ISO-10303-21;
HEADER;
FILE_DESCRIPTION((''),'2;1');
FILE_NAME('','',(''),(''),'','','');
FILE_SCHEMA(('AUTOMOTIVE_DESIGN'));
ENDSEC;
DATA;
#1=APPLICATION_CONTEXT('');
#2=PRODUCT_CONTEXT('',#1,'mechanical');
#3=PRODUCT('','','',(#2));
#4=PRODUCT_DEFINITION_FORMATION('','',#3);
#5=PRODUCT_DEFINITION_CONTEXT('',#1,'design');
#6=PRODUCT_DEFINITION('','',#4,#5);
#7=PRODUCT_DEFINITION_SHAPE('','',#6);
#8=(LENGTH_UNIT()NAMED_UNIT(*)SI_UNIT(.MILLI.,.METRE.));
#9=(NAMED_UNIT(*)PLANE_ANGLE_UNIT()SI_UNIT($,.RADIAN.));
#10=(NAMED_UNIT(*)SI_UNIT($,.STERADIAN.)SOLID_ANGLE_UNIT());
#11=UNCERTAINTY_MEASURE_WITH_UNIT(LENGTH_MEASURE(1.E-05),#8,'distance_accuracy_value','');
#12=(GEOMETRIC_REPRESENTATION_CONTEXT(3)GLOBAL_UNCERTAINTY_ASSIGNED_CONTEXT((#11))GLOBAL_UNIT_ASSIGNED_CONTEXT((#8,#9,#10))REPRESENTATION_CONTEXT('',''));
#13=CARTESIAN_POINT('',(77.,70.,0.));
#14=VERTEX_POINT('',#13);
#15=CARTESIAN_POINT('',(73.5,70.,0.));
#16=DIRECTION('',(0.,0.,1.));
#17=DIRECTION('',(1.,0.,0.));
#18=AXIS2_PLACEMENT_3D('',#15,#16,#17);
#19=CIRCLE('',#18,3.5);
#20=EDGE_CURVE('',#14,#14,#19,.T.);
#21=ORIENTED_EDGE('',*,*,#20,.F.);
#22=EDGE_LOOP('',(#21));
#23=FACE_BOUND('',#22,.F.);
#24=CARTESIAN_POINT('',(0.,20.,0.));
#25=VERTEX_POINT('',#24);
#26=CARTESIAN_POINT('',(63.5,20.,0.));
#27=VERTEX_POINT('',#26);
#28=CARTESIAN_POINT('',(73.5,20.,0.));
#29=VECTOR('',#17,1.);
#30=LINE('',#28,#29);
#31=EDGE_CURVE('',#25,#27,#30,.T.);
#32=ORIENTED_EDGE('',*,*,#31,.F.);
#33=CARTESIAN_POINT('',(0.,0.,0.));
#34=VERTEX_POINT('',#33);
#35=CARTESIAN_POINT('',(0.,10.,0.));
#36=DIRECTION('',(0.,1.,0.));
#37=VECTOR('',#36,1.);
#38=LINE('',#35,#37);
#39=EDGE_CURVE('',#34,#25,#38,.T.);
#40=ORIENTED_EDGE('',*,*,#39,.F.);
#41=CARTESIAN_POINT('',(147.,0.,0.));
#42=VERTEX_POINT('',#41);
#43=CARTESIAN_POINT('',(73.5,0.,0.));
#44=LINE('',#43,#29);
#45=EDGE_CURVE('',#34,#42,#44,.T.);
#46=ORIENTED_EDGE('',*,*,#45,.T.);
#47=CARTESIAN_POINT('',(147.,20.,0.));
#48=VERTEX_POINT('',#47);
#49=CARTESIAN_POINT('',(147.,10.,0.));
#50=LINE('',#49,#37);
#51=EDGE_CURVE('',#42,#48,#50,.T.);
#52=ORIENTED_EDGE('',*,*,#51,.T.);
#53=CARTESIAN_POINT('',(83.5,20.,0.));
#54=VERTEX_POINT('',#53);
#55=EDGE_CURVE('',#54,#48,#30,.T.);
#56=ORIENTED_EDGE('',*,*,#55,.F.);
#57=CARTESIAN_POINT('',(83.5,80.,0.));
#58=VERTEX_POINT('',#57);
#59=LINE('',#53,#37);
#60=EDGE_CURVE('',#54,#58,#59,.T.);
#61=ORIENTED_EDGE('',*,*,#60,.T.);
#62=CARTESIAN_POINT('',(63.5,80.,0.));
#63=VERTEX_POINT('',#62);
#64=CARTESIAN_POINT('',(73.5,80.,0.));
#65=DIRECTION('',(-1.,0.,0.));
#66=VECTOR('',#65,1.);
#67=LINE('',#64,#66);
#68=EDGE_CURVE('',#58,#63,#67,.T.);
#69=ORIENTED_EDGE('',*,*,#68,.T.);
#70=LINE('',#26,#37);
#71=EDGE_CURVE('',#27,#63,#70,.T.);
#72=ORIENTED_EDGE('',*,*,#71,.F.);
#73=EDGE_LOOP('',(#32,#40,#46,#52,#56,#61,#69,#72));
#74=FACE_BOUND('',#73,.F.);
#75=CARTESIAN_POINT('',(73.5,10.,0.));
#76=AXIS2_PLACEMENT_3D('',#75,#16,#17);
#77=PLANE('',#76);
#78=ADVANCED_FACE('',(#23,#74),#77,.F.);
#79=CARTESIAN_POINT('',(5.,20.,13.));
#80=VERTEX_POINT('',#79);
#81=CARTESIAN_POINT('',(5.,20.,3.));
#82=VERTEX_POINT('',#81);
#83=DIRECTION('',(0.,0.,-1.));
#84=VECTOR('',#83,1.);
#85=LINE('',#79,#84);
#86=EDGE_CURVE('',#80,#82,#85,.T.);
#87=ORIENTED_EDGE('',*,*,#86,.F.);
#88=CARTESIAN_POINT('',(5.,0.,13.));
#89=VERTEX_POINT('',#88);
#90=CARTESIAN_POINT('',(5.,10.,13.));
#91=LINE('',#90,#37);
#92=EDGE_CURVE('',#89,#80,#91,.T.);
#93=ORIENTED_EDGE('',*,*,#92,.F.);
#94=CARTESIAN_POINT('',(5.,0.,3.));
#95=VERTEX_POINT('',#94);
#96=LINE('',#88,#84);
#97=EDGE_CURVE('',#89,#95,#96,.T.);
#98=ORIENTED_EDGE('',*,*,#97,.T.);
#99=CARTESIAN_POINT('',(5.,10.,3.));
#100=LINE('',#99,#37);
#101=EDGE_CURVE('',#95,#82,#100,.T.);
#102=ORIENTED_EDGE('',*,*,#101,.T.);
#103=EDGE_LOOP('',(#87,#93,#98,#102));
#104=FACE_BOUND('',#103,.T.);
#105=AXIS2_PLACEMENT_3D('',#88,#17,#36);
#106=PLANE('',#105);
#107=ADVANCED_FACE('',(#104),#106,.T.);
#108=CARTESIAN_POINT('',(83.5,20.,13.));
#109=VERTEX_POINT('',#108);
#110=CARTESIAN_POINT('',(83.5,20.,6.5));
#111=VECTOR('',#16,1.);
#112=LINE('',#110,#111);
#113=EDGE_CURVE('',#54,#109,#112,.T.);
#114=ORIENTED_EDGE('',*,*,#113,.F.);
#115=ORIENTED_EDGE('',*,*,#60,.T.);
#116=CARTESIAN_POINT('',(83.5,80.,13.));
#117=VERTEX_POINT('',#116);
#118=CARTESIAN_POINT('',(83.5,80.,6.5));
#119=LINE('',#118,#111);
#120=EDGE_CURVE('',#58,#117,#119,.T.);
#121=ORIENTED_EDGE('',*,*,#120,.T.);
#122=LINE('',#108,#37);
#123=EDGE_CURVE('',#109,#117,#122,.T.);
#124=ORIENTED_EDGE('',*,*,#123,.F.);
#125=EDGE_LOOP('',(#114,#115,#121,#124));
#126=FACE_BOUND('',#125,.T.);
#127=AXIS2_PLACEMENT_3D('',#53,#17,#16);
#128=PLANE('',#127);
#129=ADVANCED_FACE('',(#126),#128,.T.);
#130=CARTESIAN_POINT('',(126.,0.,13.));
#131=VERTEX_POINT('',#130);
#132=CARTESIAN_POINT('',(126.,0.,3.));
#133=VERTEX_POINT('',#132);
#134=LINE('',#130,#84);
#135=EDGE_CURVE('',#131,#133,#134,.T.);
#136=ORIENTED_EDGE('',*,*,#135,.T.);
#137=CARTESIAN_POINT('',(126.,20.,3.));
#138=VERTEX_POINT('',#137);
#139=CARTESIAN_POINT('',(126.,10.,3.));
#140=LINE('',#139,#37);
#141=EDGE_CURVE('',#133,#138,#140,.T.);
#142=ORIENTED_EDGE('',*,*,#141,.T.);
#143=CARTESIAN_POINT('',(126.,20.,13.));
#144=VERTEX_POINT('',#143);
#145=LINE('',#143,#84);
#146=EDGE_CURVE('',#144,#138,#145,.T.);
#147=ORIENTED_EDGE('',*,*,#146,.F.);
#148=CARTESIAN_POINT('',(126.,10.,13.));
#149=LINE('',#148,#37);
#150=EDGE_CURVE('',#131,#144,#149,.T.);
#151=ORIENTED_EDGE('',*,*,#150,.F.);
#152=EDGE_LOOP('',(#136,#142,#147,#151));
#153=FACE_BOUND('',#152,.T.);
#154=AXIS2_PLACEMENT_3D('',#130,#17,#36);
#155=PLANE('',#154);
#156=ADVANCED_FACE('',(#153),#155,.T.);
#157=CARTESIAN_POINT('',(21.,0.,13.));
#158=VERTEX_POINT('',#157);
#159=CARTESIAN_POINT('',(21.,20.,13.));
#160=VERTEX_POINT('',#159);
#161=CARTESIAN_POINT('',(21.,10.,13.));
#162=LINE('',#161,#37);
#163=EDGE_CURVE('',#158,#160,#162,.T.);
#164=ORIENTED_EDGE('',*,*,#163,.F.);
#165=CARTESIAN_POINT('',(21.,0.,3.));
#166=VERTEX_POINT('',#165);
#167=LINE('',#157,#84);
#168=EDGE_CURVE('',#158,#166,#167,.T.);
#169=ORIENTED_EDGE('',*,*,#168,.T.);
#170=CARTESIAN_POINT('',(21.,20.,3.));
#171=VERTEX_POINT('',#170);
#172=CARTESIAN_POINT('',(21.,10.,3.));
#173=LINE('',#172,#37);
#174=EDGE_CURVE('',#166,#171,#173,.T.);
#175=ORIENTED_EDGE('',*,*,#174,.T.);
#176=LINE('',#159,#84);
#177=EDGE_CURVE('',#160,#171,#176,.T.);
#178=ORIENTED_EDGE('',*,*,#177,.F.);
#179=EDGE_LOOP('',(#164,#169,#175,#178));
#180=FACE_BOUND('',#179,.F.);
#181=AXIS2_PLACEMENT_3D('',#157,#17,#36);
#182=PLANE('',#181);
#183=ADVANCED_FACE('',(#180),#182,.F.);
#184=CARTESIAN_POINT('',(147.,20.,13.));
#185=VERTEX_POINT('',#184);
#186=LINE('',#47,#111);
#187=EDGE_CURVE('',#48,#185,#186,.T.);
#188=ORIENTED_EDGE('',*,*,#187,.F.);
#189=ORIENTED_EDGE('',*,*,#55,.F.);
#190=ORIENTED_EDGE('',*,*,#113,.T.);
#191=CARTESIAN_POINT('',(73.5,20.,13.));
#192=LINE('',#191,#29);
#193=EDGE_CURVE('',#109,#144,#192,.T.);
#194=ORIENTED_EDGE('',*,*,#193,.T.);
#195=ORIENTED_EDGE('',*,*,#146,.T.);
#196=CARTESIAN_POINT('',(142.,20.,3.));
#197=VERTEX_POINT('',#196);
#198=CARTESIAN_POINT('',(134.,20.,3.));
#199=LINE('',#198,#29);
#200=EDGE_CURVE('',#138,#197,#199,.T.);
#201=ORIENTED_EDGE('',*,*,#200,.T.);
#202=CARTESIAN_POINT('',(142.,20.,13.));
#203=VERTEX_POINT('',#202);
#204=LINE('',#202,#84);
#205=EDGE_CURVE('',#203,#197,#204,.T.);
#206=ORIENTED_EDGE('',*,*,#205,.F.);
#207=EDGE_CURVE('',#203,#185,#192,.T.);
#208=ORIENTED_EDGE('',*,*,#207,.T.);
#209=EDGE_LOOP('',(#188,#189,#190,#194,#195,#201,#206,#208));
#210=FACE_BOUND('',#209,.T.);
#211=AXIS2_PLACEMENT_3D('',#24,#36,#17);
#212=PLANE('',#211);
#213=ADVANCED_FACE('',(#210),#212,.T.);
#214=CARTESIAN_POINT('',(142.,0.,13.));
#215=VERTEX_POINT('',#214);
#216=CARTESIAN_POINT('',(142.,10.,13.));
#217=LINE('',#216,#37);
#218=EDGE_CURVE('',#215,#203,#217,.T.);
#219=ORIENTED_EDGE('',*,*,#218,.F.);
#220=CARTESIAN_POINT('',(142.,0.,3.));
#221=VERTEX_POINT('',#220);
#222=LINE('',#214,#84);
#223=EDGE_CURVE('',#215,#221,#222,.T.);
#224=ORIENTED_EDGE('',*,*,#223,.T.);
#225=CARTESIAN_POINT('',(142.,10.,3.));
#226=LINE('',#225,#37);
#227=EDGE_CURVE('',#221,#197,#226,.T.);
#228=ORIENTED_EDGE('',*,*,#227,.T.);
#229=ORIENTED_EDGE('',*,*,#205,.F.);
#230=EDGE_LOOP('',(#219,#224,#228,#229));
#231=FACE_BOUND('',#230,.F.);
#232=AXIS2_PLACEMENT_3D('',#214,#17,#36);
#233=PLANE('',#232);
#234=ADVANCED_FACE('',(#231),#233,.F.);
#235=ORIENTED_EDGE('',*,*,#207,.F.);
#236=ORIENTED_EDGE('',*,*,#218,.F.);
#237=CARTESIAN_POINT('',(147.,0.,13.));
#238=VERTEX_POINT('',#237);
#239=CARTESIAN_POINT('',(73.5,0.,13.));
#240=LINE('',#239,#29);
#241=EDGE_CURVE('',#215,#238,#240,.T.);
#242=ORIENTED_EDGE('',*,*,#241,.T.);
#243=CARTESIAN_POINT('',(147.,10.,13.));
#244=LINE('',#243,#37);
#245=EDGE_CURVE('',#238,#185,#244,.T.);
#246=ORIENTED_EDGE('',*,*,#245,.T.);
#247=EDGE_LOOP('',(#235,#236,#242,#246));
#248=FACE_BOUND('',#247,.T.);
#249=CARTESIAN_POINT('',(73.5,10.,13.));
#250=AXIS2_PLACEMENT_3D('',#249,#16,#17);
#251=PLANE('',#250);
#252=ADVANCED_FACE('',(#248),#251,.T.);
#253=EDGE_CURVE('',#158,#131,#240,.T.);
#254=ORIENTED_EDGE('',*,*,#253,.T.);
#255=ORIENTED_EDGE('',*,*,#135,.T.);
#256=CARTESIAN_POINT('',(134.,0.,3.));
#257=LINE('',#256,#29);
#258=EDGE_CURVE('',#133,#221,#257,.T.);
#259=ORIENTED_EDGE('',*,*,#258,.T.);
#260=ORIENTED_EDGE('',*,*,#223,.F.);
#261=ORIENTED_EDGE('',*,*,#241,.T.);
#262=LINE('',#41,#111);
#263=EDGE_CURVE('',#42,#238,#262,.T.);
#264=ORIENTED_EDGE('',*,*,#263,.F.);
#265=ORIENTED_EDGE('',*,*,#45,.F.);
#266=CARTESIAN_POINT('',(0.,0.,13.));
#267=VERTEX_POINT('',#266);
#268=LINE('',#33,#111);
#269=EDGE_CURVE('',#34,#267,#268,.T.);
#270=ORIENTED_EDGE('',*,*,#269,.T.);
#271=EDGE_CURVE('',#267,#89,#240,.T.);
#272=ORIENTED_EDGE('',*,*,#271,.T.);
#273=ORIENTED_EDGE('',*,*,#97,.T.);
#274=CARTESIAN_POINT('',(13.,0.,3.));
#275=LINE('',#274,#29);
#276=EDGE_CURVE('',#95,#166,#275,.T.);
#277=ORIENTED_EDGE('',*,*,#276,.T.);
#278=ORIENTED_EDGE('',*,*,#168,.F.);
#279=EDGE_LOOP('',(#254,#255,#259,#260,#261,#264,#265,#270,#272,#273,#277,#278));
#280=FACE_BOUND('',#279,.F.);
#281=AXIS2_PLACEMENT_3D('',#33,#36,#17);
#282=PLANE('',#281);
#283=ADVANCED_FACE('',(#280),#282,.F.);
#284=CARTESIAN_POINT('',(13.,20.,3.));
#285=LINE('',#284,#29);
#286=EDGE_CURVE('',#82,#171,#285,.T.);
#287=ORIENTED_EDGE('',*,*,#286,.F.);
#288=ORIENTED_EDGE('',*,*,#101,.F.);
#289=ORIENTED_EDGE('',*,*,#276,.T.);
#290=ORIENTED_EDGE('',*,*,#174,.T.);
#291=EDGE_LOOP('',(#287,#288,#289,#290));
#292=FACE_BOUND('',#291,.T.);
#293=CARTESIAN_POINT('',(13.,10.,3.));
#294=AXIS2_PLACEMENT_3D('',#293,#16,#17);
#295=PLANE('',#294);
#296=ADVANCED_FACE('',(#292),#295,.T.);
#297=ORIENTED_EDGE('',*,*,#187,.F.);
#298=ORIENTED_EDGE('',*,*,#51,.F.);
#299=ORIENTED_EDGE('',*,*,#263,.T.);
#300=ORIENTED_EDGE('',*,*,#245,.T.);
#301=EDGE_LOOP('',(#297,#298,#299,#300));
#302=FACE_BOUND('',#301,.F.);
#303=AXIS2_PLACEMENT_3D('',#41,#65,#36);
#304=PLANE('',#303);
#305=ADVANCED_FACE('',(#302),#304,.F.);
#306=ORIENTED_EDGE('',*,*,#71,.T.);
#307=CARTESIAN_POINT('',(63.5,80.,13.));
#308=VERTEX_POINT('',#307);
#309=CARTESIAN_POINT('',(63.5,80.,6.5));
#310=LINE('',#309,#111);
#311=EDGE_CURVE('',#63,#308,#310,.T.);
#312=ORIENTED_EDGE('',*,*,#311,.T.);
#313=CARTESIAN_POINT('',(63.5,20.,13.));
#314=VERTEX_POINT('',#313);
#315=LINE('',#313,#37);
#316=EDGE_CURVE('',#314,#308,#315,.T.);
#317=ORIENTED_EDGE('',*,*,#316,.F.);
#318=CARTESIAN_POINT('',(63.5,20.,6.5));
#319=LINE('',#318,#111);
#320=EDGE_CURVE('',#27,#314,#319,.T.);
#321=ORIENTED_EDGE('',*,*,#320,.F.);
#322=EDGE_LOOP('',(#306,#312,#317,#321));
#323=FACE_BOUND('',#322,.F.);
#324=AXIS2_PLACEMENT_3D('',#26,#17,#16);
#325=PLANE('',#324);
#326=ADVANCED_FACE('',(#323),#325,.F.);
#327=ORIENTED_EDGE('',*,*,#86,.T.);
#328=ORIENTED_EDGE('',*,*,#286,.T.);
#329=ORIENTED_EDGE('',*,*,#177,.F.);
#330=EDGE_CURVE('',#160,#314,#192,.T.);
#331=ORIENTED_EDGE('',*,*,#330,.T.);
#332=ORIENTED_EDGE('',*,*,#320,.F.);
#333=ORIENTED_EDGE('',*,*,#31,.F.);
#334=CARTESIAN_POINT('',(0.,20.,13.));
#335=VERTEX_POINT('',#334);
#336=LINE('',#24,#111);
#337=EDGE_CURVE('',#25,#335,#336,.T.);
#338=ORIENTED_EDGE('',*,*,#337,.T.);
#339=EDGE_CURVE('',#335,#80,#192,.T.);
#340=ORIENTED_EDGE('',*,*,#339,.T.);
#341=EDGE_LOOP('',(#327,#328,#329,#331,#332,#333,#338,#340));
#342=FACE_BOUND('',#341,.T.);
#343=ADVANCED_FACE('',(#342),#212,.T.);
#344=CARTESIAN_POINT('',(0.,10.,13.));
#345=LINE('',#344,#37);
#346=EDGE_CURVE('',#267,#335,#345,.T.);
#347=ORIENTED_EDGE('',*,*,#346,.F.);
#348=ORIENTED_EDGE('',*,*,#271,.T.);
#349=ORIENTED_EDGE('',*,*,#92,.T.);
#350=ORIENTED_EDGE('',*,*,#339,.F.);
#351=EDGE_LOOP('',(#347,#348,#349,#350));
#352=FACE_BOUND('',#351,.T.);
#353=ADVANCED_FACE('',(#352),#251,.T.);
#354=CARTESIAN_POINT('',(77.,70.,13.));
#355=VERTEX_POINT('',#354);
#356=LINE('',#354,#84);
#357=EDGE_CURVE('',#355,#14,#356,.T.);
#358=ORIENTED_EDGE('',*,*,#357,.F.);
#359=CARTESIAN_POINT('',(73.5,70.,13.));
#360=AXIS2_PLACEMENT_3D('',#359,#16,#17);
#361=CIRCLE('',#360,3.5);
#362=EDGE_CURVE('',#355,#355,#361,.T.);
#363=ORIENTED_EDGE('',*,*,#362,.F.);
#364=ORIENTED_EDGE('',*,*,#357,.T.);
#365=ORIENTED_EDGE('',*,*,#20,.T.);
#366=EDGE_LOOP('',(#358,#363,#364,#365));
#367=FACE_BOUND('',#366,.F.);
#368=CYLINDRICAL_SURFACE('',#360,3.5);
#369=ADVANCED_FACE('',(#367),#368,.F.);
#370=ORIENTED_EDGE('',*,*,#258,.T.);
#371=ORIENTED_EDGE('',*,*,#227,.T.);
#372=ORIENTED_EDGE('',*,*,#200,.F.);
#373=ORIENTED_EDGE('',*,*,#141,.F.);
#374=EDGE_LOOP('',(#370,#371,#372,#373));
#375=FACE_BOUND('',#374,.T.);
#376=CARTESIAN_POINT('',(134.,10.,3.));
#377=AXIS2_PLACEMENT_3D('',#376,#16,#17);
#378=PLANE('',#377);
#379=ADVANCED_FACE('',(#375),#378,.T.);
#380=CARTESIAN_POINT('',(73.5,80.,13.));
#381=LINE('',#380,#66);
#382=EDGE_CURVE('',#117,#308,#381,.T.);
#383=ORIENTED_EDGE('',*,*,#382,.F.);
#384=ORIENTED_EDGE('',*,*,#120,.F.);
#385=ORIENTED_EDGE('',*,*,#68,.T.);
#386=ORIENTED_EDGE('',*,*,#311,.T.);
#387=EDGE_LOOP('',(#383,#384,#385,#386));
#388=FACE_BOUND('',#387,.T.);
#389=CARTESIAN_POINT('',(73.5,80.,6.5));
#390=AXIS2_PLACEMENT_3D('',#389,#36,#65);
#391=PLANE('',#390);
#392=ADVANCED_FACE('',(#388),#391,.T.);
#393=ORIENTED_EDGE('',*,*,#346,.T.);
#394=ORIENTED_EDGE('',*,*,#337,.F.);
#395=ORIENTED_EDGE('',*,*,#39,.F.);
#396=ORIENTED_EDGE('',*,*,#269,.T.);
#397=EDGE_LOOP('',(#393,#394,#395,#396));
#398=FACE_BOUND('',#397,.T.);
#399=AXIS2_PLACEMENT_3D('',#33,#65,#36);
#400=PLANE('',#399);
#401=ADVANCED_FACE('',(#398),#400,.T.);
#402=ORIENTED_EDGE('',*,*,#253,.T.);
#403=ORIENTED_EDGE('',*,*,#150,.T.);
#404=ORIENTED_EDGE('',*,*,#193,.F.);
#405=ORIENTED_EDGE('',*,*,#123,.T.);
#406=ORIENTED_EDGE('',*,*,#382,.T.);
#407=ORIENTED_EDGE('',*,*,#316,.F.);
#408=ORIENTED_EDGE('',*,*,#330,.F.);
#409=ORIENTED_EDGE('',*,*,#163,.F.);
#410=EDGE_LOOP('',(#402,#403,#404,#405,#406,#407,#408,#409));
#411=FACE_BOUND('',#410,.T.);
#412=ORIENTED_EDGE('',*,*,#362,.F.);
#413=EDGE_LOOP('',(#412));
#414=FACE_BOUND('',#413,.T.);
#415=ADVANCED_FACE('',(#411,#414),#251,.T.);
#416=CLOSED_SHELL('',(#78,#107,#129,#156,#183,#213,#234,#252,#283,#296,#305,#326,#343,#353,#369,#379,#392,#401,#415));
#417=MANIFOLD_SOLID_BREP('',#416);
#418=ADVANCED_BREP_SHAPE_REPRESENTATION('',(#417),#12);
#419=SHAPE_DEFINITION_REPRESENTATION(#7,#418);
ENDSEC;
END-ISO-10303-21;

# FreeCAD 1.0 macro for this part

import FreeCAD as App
import Part
import Sketcher
Q = App.Units.Quantity

doc = App.newDocument("Part")
body = doc.addObject("PartDesign::Body", "Body")

# Sketch on XY plane
sketch1 = doc.addObject("Sketcher::SketchObject", "Sketch")
body.addObject(sketch1)
sketch1.AttachmentSupport = (doc.XY_Plane, [""])
sketch1.MapMode = "FlatFace"
sketch1.addGeometry([
    Part.LineSegment(App.Vector(0, 20, 0), App.Vector(0, 0, 0)),
    Part.LineSegment(App.Vector(0, 0, 0), App.Vector(147, 0, 0)),
    Part.LineSegment(App.Vector(147, 0, 0), App.Vector(147, 20, 0)),
    Part.LineSegment(App.Vector(147, 20, 0), App.Vector(0, 20, 0)),
], False)
sketch1.addConstraint([
    Sketcher.Constraint("Coincident", 0, 2, 1, 1),
    Sketcher.Constraint("Coincident", 1, 2, 2, 1),
    Sketcher.Constraint("Coincident", 2, 2, 3, 1),
    Sketcher.Constraint("Coincident", 3, 2, 0, 1),
    Sketcher.Constraint("Vertical", 0),
    Sketcher.Constraint("Horizontal", 1),
    Sketcher.Constraint("Vertical", 2),
    Sketcher.Constraint("Horizontal", 3),
    Sketcher.Constraint("Coincident", 0, 2, -1, 1),
    Sketcher.Constraint("DistanceX", 1, 1, 1, 2, Q("147 mm")),
    Sketcher.Constraint("DistanceY", 0, 2, 0, 1, Q("20 mm")),
])
pad1 = doc.addObject("PartDesign::Pad", "Pad")
body.addObject(pad1)
pad1.Profile = sketch1
pad1.Length = 13

# Sketch on XY plane
sketch2 = doc.addObject("Sketcher::SketchObject", "Sketch001")
body.addObject(sketch2)
sketch2.AttachmentSupport = (doc.XY_Plane, [""])
sketch2.MapMode = "FlatFace"
sketch2.AttachmentOffset = App.Placement(App.Vector(0, 0, 13), App.Rotation())
sketch2.addGeometry([
    Part.LineSegment(App.Vector(5, 20, 0), App.Vector(5, 0, 0)),  # 0
    Part.LineSegment(App.Vector(5, 0, 0), App.Vector(21, 0, 0)),  # 1
    Part.LineSegment(App.Vector(21, 0, 0), App.Vector(21, 20, 0)),  # 2
    Part.LineSegment(App.Vector(21, 20, 0), App.Vector(5, 20, 0)),  # 3
    Part.LineSegment(App.Vector(126, 20, 0), App.Vector(126, 0, 0)),  # 4
    Part.LineSegment(App.Vector(126, 0, 0), App.Vector(142, 0, 0)),  # 5
    Part.LineSegment(App.Vector(142, 0, 0), App.Vector(142, 20, 0)),  # 6
    Part.LineSegment(App.Vector(142, 20, 0), App.Vector(126, 20, 0)),  # 7
], False)
sketch2.addConstraint([
    Sketcher.Constraint("Coincident", 0, 2, 1, 1),
    Sketcher.Constraint("Coincident", 1, 2, 2, 1),
    Sketcher.Constraint("Coincident", 2, 2, 3, 1),
    Sketcher.Constraint("Coincident", 3, 2, 0, 1),
    Sketcher.Constraint("Coincident", 4, 2, 5, 1),
    Sketcher.Constraint("Coincident", 5, 2, 6, 1),
    Sketcher.Constraint("Coincident", 6, 2, 7, 1),
    Sketcher.Constraint("Coincident", 7, 2, 4, 1),
    Sketcher.Constraint("Vertical", 0),
    Sketcher.Constraint("Horizontal", 1),
    Sketcher.Constraint("Vertical", 2),
    Sketcher.Constraint("Horizontal", 3),
    Sketcher.Constraint("Vertical", 4),
    Sketcher.Constraint("Horizontal", 5),
    Sketcher.Constraint("Vertical", 6),
    Sketcher.Constraint("Horizontal", 7),
    Sketcher.Constraint("PointOnObject", 0, 2, -1),
    Sketcher.Constraint("PointOnObject", 4, 2, -1),
    Sketcher.Constraint("Horizontal", 3, 2, 6, 2),
    Sketcher.Constraint("Equal", 3, 5),
    Sketcher.Constraint("DistanceX", 1, 1, 1, 2, Q("16 mm")),
    Sketcher.Constraint("DistanceY", 0, 2, 0, 1, Q("20 mm")),
    Sketcher.Constraint("DistanceX", -1, 1, 0, 2, Q("5 mm")),
    Sketcher.Constraint("DistanceX", -1, 1, 4, 2, Q("126 mm")),
])
pocket1 = doc.addObject("PartDesign::Pocket", "Pocket")
body.addObject(pocket1)
pocket1.Profile = sketch2
pocket1.Length = 10

# Sketch on XZ plane
sketch3 = doc.addObject("Sketcher::SketchObject", "Sketch002")
body.addObject(sketch3)
sketch3.AttachmentSupport = (doc.XZ_Plane, [""])
sketch3.MapMode = "FlatFace"
sketch3.AttachmentOffset = App.Placement(App.Vector(0, 0, -20), App.Rotation())
sketch3.addGeometry([
    Part.LineSegment(App.Vector(84, 13, 0), App.Vector(84, 0, 0)),
    Part.LineSegment(App.Vector(84, 0, 0), App.Vector(64, 0, 0)),
    Part.LineSegment(App.Vector(64, 0, 0), App.Vector(64, 13, 0)),
    Part.LineSegment(App.Vector(64, 13, 0), App.Vector(84, 13, 0)),
], False)
sketch3.addConstraint([
    Sketcher.Constraint("Coincident", 0, 2, 1, 1),
    Sketcher.Constraint("Coincident", 1, 2, 2, 1),
    Sketcher.Constraint("Coincident", 2, 2, 3, 1),
    Sketcher.Constraint("Coincident", 3, 2, 0, 1),
    Sketcher.Constraint("Vertical", 0),
    Sketcher.Constraint("Horizontal", 1),
    Sketcher.Constraint("Vertical", 2),
    Sketcher.Constraint("Horizontal", 3),
    Sketcher.Constraint("PointOnObject", 0, 2, -1),
    Sketcher.Constraint("DistanceX", 1, 2, 1, 1, Q("20 mm")),
    Sketcher.Constraint("DistanceY", 0, 2, 0, 1, Q("13 mm")),
    Sketcher.Constraint("DistanceX", -1, 1, 0, 2, Q("83.5 mm")),
])
pad2 = doc.addObject("PartDesign::Pad", "Pad001")
body.addObject(pad2)
pad2.Profile = sketch3
pad2.Length = 60
pad2.Reversed = True

# Sketch on XY plane
sketch4 = doc.addObject("Sketcher::SketchObject", "Sketch003")
body.addObject(sketch4)
sketch4.AttachmentSupport = (doc.XY_Plane, [""])
sketch4.MapMode = "FlatFace"
sketch4.AttachmentOffset = App.Placement(App.Vector(0, 0, 13), App.Rotation())
sketch4.addGeometry(Part.Circle(App.Vector(73.5, 70, 0), App.Vector(0, 0, 1), 3.5), False)
sketch4.addConstraint([
    Sketcher.Constraint("Diameter", 0, Q("7 mm")),
    Sketcher.Constraint("DistanceY", -1, 1, 0, 3, Q("70 mm")),
    Sketcher.Constraint("DistanceX", -1, 1, 0, 3, Q("73.5 mm")),
])
pocket2 = doc.addObject("PartDesign::Pocket", "Pocket001")
body.addObject(pocket2)
pocket2.Profile = sketch4
pocket2.Type = "ThroughAll"

doc.recompute()
